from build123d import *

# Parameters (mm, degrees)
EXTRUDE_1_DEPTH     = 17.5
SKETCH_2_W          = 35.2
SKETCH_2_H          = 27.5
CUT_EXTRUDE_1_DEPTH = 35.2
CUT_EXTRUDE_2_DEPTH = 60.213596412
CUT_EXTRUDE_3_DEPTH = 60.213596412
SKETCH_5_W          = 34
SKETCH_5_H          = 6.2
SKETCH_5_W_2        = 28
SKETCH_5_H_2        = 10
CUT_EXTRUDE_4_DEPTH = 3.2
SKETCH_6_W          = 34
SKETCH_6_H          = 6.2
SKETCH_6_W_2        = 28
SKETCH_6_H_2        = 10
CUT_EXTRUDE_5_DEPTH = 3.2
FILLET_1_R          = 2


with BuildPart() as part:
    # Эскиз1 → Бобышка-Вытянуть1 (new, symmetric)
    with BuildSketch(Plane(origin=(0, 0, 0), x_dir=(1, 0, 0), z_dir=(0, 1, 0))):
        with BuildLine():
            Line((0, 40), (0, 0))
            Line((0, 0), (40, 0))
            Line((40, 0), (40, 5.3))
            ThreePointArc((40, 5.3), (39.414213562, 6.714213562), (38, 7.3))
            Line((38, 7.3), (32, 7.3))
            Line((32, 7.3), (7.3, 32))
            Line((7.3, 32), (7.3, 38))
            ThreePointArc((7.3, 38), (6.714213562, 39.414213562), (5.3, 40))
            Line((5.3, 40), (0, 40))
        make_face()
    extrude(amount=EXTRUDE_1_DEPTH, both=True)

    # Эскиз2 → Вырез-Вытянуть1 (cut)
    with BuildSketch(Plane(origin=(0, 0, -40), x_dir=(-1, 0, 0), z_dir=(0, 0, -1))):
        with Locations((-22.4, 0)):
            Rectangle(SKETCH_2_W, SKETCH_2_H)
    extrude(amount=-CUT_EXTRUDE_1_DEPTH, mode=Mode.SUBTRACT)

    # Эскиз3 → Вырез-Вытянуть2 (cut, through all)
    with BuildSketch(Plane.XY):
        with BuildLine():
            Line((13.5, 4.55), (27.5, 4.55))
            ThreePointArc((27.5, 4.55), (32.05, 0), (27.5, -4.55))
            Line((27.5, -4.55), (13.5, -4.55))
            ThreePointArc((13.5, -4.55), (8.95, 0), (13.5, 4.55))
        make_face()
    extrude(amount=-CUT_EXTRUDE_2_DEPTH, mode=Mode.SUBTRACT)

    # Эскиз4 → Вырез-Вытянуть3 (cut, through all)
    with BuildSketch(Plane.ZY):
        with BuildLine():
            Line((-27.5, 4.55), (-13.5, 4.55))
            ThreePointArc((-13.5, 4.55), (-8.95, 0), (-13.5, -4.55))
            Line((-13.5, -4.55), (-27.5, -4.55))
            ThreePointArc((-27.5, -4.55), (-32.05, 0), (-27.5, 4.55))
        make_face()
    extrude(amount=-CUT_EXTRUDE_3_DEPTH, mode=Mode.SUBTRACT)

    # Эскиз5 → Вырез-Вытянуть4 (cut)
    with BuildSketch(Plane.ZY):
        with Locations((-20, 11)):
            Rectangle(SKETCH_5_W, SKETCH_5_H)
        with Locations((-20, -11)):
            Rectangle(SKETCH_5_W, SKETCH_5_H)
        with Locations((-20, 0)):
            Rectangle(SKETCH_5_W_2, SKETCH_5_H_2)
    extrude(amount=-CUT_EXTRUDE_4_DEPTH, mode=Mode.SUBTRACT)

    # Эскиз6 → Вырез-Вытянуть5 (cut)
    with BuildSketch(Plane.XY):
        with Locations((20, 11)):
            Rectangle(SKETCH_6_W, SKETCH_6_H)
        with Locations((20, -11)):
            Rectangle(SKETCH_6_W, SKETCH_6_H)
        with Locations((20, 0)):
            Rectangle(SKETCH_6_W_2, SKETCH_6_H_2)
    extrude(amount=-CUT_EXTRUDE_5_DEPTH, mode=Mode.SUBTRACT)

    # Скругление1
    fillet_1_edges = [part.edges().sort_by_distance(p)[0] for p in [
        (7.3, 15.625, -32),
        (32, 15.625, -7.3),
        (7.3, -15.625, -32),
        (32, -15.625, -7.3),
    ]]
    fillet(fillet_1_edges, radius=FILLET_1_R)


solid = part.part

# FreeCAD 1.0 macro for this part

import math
import FreeCAD as App
import Part
import Sketcher


def edges_at(feature, points):
    """Names of the edges that pass closest to the given points."""
    edges = feature.Shape.Edges
    near = lambda p: min(range(len(edges)), key=lambda i: edges[i].distToShape(Part.Vertex(*p))[0])
    return sorted({f"Edge{near(p) + 1}" for p in points})

doc = App.newDocument("Part")
params = doc.addObject("Spreadsheet::Sheet", "Params")
for row, (alias, value) in enumerate([
    ("sketch1_radius", "2 mm"),
    ("sketch1_width", "40 mm"),
    ("sketch1_width2", "6 mm"),
    ("sketch1_width3", "5.3 mm"),
    ("pad1_length", "35 mm"),
    ("sketch2_width", "35.2 mm"),
    ("sketch2_height", "27.5 mm"),
    ("pocket1_length", "35.2 mm"),
    ("sketch3_width", "14 mm"),
    ("sketch3_radius", "4.55 mm"),
    ("sketch4_height", "14 mm"),
    ("sketch4_radius", "4.55 mm"),
    ("sketch5_width", "10 mm"),
    ("sketch5_height", "34 mm"),
    ("sketch5_height2", "28 mm"),
    ("sketch5_width2", "6.2 mm"),
    ("pocket4_length", "3.2 mm"),
    ("sketch6_width", "34 mm"),
    ("sketch6_width2", "28 mm"),
    ("sketch6_height", "10 mm"),
    ("sketch6_height2", "6.2 mm"),
    ("pocket5_length", "3.2 mm"),
    ("fillet_radius", "2 mm"),
], start=1):
    params.set(f"A{row}", alias)
    params.set(f"B{row}", "=" + value)
    params.setAlias(f"B{row}", alias)

body = doc.addObject("PartDesign::Body", "Body")

sketch1 = body.newObject("Sketcher::SketchObject", "Sketch")
sketch1.AttachmentSupport = (doc.getObject("XZ_Plane"), [""])
sketch1.MapMode = "FlatFace"
sketch1.addGeometry(Part.LineSegment(App.Vector(0, -40, 0), App.Vector(0, 0, 0)), False)
sketch1.addGeometry(Part.LineSegment(App.Vector(0, 0, 0), App.Vector(40, 0, 0)), False)
sketch1.addGeometry(Part.LineSegment(App.Vector(40, 0, 0), App.Vector(40, -5.3, 0)), False)
sketch1.addGeometry(Part.ArcOfCircle(Part.Circle(App.Vector(38, -5.3, 0), App.Vector(0, 0, 1), 2), math.radians(-90), math.radians(0)), False)
sketch1.addGeometry(Part.LineSegment(App.Vector(38, -7.3, 0), App.Vector(32, -7.3, 0)), False)
sketch1.addGeometry(Part.LineSegment(App.Vector(32, -7.3, 0), App.Vector(7.3, -32, 0)), False)
sketch1.addGeometry(Part.LineSegment(App.Vector(7.3, -32, 0), App.Vector(7.3, -38, 0)), False)
sketch1.addGeometry(Part.ArcOfCircle(Part.Circle(App.Vector(5.3, -38, 0), App.Vector(0, 0, 1), 2), math.radians(-90), math.radians(0)), False)
sketch1.addGeometry(Part.LineSegment(App.Vector(5.3, -40, 0), App.Vector(0, -40, 0)), False)
sketch1.addConstraint(Sketcher.Constraint("Coincident", 0, 2, 1, 1))
sketch1.addConstraint(Sketcher.Constraint("Coincident", 1, 2, 2, 1))
sketch1.addConstraint(Sketcher.Constraint("Tangent", 2, 2, 3, 2))
sketch1.addConstraint(Sketcher.Constraint("Tangent", 3, 1, 4, 1))
sketch1.addConstraint(Sketcher.Constraint("Coincident", 4, 2, 5, 1))
sketch1.addConstraint(Sketcher.Constraint("Coincident", 5, 2, 6, 1))
sketch1.addConstraint(Sketcher.Constraint("Tangent", 6, 2, 7, 2))
sketch1.addConstraint(Sketcher.Constraint("Tangent", 7, 1, 8, 1))
sketch1.addConstraint(Sketcher.Constraint("Coincident", 8, 2, 0, 1))
sketch1.addConstraint(Sketcher.Constraint("Vertical", 0))
sketch1.addConstraint(Sketcher.Constraint("Horizontal", 1))
sketch1.addConstraint(Sketcher.Constraint("Vertical", 2))
sketch1.addConstraint(Sketcher.Constraint("Horizontal", 4))
sketch1.addConstraint(Sketcher.Constraint("Vertical", 6))
sketch1.addConstraint(Sketcher.Constraint("Horizontal", 8))
sketch1.addConstraint(Sketcher.Constraint("Coincident", 0, 2, -1, 1))
sketch1.addConstraint(Sketcher.Constraint("Equal", 3, 7))
sketch1.addConstraint(Sketcher.Constraint("Equal", 1, 0))
sketch1.addConstraint(Sketcher.Constraint("Equal", 8, 2))
sketch1.addConstraint(Sketcher.Constraint("Equal", 4, 6))
sketch1.addConstraint(Sketcher.Constraint("Radius", 3, 2.0))
sketch1.addConstraint(Sketcher.Constraint("DistanceX", 1, 1, 1, 2, 40.0))
sketch1.addConstraint(Sketcher.Constraint("DistanceX", 4, 2, 4, 1, 6.0))
sketch1.addConstraint(Sketcher.Constraint("DistanceX", 8, 2, 8, 1, 5.3))
sketch1.setExpression("Constraints[20]", "Params.sketch1_radius")
sketch1.setExpression("Constraints[21]", "Params.sketch1_width")
sketch1.setExpression("Constraints[22]", "Params.sketch1_width2")
sketch1.setExpression("Constraints[23]", "Params.sketch1_width3")
pad1 = body.newObject("PartDesign::Pad", "Pad")
pad1.Profile = sketch1
pad1.setExpression("Length", "Params.pad1_length")
pad1.Midplane = True

sketch2 = body.newObject("Sketcher::SketchObject", "Sketch001")
sketch2.AttachmentSupport = (doc.getObject("XY_Plane"), [""])
sketch2.MapMode = "FlatFace"
sketch2.AttachmentOffset = App.Placement(App.Vector(0, 0, -40), App.Rotation())
sketch2.addGeometry(Part.LineSegment(App.Vector(40, 13.75, 0), App.Vector(40, -13.75, 0)), False)
sketch2.addGeometry(Part.LineSegment(App.Vector(40, -13.75, 0), App.Vector(4.8, -13.75, 0)), False)
sketch2.addGeometry(Part.LineSegment(App.Vector(4.8, -13.75, 0), App.Vector(4.8, 13.75, 0)), False)
sketch2.addGeometry(Part.LineSegment(App.Vector(4.8, 13.75, 0), App.Vector(40, 13.75, 0)), False)
sketch2.addConstraint(Sketcher.Constraint("Coincident", 0, 2, 1, 1))
sketch2.addConstraint(Sketcher.Constraint("Coincident", 1, 2, 2, 1))
sketch2.addConstraint(Sketcher.Constraint("Coincident", 2, 2, 3, 1))
sketch2.addConstraint(Sketcher.Constraint("Coincident", 3, 2, 0, 1))
sketch2.addConstraint(Sketcher.Constraint("Vertical", 0))
sketch2.addConstraint(Sketcher.Constraint("Horizontal", 1))
sketch2.addConstraint(Sketcher.Constraint("Vertical", 2))
sketch2.addConstraint(Sketcher.Constraint("Horizontal", 3))
sketch2.addConstraint(Sketcher.Constraint("DistanceX", 1, 2, 1, 1, 35.2))
sketch2.addConstraint(Sketcher.Constraint("DistanceY", 0, 2, 0, 1, 27.5))
sketch2.addConstraint(Sketcher.Constraint("DistanceX", -1, 1, 0, 2, 40.0))
sketch2.addConstraint(Sketcher.Constraint("DistanceY", 0, 2, -1, 1, 13.75))
sketch2.setExpression("Constraints[8]", "Params.sketch2_width")
sketch2.setExpression("Constraints[9]", "Params.sketch2_height")
pocket1 = body.newObject("PartDesign::Pocket", "Pocket")
pocket1.Profile = sketch2
pocket1.setExpression("Length", "Params.pocket1_length")
pocket1.Reversed = True

sketch3 = body.newObject("Sketcher::SketchObject", "Sketch002")
sketch3.AttachmentSupport = (doc.getObject("XY_Plane"), [""])
sketch3.MapMode = "FlatFace"
sketch3.addGeometry(Part.LineSegment(App.Vector(27.5, 4.55, 0), App.Vector(13.5, 4.55, 0)), False)
sketch3.addGeometry(Part.ArcOfCircle(Part.Circle(App.Vector(13.5, 0, 0), App.Vector(0, 0, 1), 4.55), math.radians(90), math.radians(270)), False)
sketch3.addGeometry(Part.LineSegment(App.Vector(13.5, -4.55, 0), App.Vector(27.5, -4.55, 0)), False)
sketch3.addGeometry(Part.ArcOfCircle(Part.Circle(App.Vector(27.5, 0, 0), App.Vector(0, 0, 1), 4.55), math.radians(-90), math.radians(90)), False)
sketch3.addConstraint(Sketcher.Constraint("Tangent", 0, 2, 1, 1))
sketch3.addConstraint(Sketcher.Constraint("Tangent", 1, 2, 2, 1))
sketch3.addConstraint(Sketcher.Constraint("Tangent", 2, 2, 3, 1))
sketch3.addConstraint(Sketcher.Constraint("Tangent", 3, 2, 0, 1))
sketch3.addConstraint(Sketcher.Constraint("Horizontal", 0))
sketch3.addConstraint(Sketcher.Constraint("Horizontal", 2))
sketch3.addConstraint(Sketcher.Constraint("PointOnObject", 1, 3, -1))
sketch3.addConstraint(Sketcher.Constraint("DistanceX", 0, 2, 0, 1, 14.0))
sketch3.addConstraint(Sketcher.Constraint("Radius", 1, 4.55))
sketch3.addConstraint(Sketcher.Constraint("DistanceX", -1, 1, 1, 3, 13.5))
sketch3.setExpression("Constraints[7]", "Params.sketch3_width")
sketch3.setExpression("Constraints[8]", "Params.sketch3_radius")
pocket2 = body.newObject("PartDesign::Pocket", "Pocket001")
pocket2.Profile = sketch3
pocket2.Type = "ThroughAll"

sketch4 = body.newObject("Sketcher::SketchObject", "Sketch003")
sketch4.AttachmentSupport = (doc.getObject("YZ_Plane"), [""])
sketch4.MapMode = "FlatFace"
sketch4.addGeometry(Part.LineSegment(App.Vector(4.55, -13.5, 0), App.Vector(4.55, -27.5, 0)), False)
sketch4.addGeometry(Part.ArcOfCircle(Part.Circle(App.Vector(0, -27.5, 0), App.Vector(0, 0, 1), 4.55), math.radians(180), math.radians(360)), False)
sketch4.addGeometry(Part.LineSegment(App.Vector(-4.55, -27.5, 0), App.Vector(-4.55, -13.5, 0)), False)
sketch4.addGeometry(Part.ArcOfCircle(Part.Circle(App.Vector(0, -13.5, 0), App.Vector(0, 0, 1), 4.55), math.radians(0), math.radians(180)), False)
sketch4.addConstraint(Sketcher.Constraint("Tangent", 0, 2, 1, 2))
sketch4.addConstraint(Sketcher.Constraint("Tangent", 1, 1, 2, 1))
sketch4.addConstraint(Sketcher.Constraint("Tangent", 2, 2, 3, 2))
sketch4.addConstraint(Sketcher.Constraint("Tangent", 3, 1, 0, 1))
sketch4.addConstraint(Sketcher.Constraint("Vertical", 0))
sketch4.addConstraint(Sketcher.Constraint("Vertical", 2))
sketch4.addConstraint(Sketcher.Constraint("PointOnObject", 1, 3, -2))
sketch4.addConstraint(Sketcher.Constraint("DistanceY", 0, 2, 0, 1, 14.0))
sketch4.addConstraint(Sketcher.Constraint("Radius", 1, 4.55))
sketch4.addConstraint(Sketcher.Constraint("DistanceY", 1, 3, -1, 1, 27.5))
sketch4.setExpression("Constraints[7]", "Params.sketch4_height")
sketch4.setExpression("Constraints[8]", "Params.sketch4_radius")
pocket3 = body.newObject("PartDesign::Pocket", "Pocket002")
pocket3.Profile = sketch4
pocket3.Type = "ThroughAll"
pocket3.Reversed = True

sketch5 = body.newObject("Sketcher::SketchObject", "Sketch004")
sketch5.AttachmentSupport = (doc.getObject("YZ_Plane"), [""])
sketch5.MapMode = "FlatFace"
sketch5.addGeometry(Part.LineSegment(App.Vector(14.1, -37, 0), App.Vector(7.9, -37, 0)), False)
sketch5.addGeometry(Part.LineSegment(App.Vector(7.9, -37, 0), App.Vector(7.9, -3, 0)), False)
sketch5.addGeometry(Part.LineSegment(App.Vector(7.9, -3, 0), App.Vector(14.1, -3, 0)), False)
sketch5.addGeometry(Part.LineSegment(App.Vector(14.1, -3, 0), App.Vector(14.1, -37, 0)), False)
sketch5.addGeometry(Part.LineSegment(App.Vector(-7.9, -37, 0), App.Vector(-14.1, -37, 0)), False)
sketch5.addGeometry(Part.LineSegment(App.Vector(-14.1, -37, 0), App.Vector(-14.1, -3, 0)), False)
sketch5.addGeometry(Part.LineSegment(App.Vector(-14.1, -3, 0), App.Vector(-7.9, -3, 0)), False)
sketch5.addGeometry(Part.LineSegment(App.Vector(-7.9, -3, 0), App.Vector(-7.9, -37, 0)), False)
sketch5.addGeometry(Part.LineSegment(App.Vector(5, -34, 0), App.Vector(-5, -34, 0)), False)
sketch5.addGeometry(Part.LineSegment(App.Vector(-5, -34, 0), App.Vector(-5, -6, 0)), False)
sketch5.addGeometry(Part.LineSegment(App.Vector(-5, -6, 0), App.Vector(5, -6, 0)), False)
sketch5.addGeometry(Part.LineSegment(App.Vector(5, -6, 0), App.Vector(5, -34, 0)), False)
sketch5.addConstraint(Sketcher.Constraint("Coincident", 0, 2, 1, 1))
sketch5.addConstraint(Sketcher.Constraint("Coincident", 1, 2, 2, 1))
sketch5.addConstraint(Sketcher.Constraint("Coincident", 2, 2, 3, 1))
sketch5.addConstraint(Sketcher.Constraint("Coincident", 3, 2, 0, 1))
sketch5.addConstraint(Sketcher.Constraint("Coincident", 4, 2, 5, 1))
sketch5.addConstraint(Sketcher.Constraint("Coincident", 5, 2, 6, 1))
sketch5.addConstraint(Sketcher.Constraint("Coincident", 6, 2, 7, 1))
sketch5.addConstraint(Sketcher.Constraint("Coincident", 7, 2, 4, 1))
sketch5.addConstraint(Sketcher.Constraint("Coincident", 8, 2, 9, 1))
sketch5.addConstraint(Sketcher.Constraint("Coincident", 9, 2, 10, 1))
sketch5.addConstraint(Sketcher.Constraint("Coincident", 10, 2, 11, 1))
sketch5.addConstraint(Sketcher.Constraint("Coincident", 11, 2, 8, 1))
sketch5.addConstraint(Sketcher.Constraint("Horizontal", 0))
sketch5.addConstraint(Sketcher.Constraint("Vertical", 1))
sketch5.addConstraint(Sketcher.Constraint("Horizontal", 2))
sketch5.addConstraint(Sketcher.Constraint("Vertical", 3))
sketch5.addConstraint(Sketcher.Constraint("Horizontal", 4))
sketch5.addConstraint(Sketcher.Constraint("Vertical", 5))
sketch5.addConstraint(Sketcher.Constraint("Horizontal", 6))
sketch5.addConstraint(Sketcher.Constraint("Vertical", 7))
sketch5.addConstraint(Sketcher.Constraint("Horizontal", 8))
sketch5.addConstraint(Sketcher.Constraint("Vertical", 9))
sketch5.addConstraint(Sketcher.Constraint("Horizontal", 10))
sketch5.addConstraint(Sketcher.Constraint("Vertical", 11))
sketch5.addConstraint(Sketcher.Constraint("Symmetric", 3, 2, 4, 2, -2))
sketch5.addConstraint(Sketcher.Constraint("Symmetric", 1, 2, 6, 2, -2))
sketch5.addConstraint(Sketcher.Constraint("DistanceX", 8, 2, 8, 1, 10.0))
sketch5.addConstraint(Sketcher.Constraint("DistanceY", 1, 1, 1, 2, 34.0))
sketch5.addConstraint(Sketcher.Constraint("DistanceY", 9, 1, 9, 2, 28.0))
sketch5.addConstraint(Sketcher.Constraint("DistanceX", 0, 2, 0, 1, 6.2))
sketch5.addConstraint(Sketcher.Constraint("DistanceY", 0, 2, -1, 1, 37.0))
sketch5.addConstraint(Sketcher.Constraint("DistanceX", 8, 2, -1, 1, 5.0))
sketch5.addConstraint(Sketcher.Constraint("DistanceY", 8, 2, -1, 1, 34.0))
sketch5.addConstraint(Sketcher.Constraint("DistanceX", 4, 2, 0, 2, 22.0))
sketch5.setExpression("Constraints[26]", "Params.sketch5_width")
sketch5.setExpression("Constraints[27]", "Params.sketch5_height")
sketch5.setExpression("Constraints[28]", "Params.sketch5_height2")
sketch5.setExpression("Constraints[29]", "Params.sketch5_width2")
pocket4 = body.newObject("PartDesign::Pocket", "Pocket003")
pocket4.Profile = sketch5
pocket4.setExpression("Length", "Params.pocket4_length")
pocket4.Reversed = True

sketch6 = body.newObject("Sketcher::SketchObject", "Sketch005")
sketch6.AttachmentSupport = (doc.getObject("XY_Plane"), [""])
sketch6.MapMode = "FlatFace"
sketch6.addGeometry(Part.LineSegment(App.Vector(3, 14.1, 0), App.Vector(3, 7.9, 0)), False)
sketch6.addGeometry(Part.LineSegment(App.Vector(3, 7.9, 0), App.Vector(37, 7.9, 0)), False)
sketch6.addGeometry(Part.LineSegment(App.Vector(37, 7.9, 0), App.Vector(37, 14.1, 0)), False)
sketch6.addGeometry(Part.LineSegment(App.Vector(37, 14.1, 0), App.Vector(3, 14.1, 0)), False)
sketch6.addGeometry(Part.LineSegment(App.Vector(3, -7.9, 0), App.Vector(3, -14.1, 0)), False)
sketch6.addGeometry(Part.LineSegment(App.Vector(3, -14.1, 0), App.Vector(37, -14.1, 0)), False)
sketch6.addGeometry(Part.LineSegment(App.Vector(37, -14.1, 0), App.Vector(37, -7.9, 0)), False)
sketch6.addGeometry(Part.LineSegment(App.Vector(37, -7.9, 0), App.Vector(3, -7.9, 0)), False)
sketch6.addGeometry(Part.LineSegment(App.Vector(6, 5, 0), App.Vector(6, -5, 0)), False)
sketch6.addGeometry(Part.LineSegment(App.Vector(6, -5, 0), App.Vector(34, -5, 0)), False)
sketch6.addGeometry(Part.LineSegment(App.Vector(34, -5, 0), App.Vector(34, 5, 0)), False)
sketch6.addGeometry(Part.LineSegment(App.Vector(34, 5, 0), App.Vector(6, 5, 0)), False)
sketch6.addConstraint(Sketcher.Constraint("Coincident", 0, 2, 1, 1))
sketch6.addConstraint(Sketcher.Constraint("Coincident", 1, 2, 2, 1))
sketch6.addConstraint(Sketcher.Constraint("Coincident", 2, 2, 3, 1))
sketch6.addConstraint(Sketcher.Constraint("Coincident", 3, 2, 0, 1))
sketch6.addConstraint(Sketcher.Constraint("Coincident", 4, 2, 5, 1))
sketch6.addConstraint(Sketcher.Constraint("Coincident", 5, 2, 6, 1))
sketch6.addConstraint(Sketcher.Constraint("Coincident", 6, 2, 7, 1))
sketch6.addConstraint(Sketcher.Constraint("Coincident", 7, 2, 4, 1))
sketch6.addConstraint(Sketcher.Constraint("Coincident", 8, 2, 9, 1))
sketch6.addConstraint(Sketcher.Constraint("Coincident", 9, 2, 10, 1))
sketch6.addConstraint(Sketcher.Constraint("Coincident", 10, 2, 11, 1))
sketch6.addConstraint(Sketcher.Constraint("Coincident", 11, 2, 8, 1))
sketch6.addConstraint(Sketcher.Constraint("Vertical", 0))
sketch6.addConstraint(Sketcher.Constraint("Horizontal", 1))
sketch6.addConstraint(Sketcher.Constraint("Vertical", 2))
sketch6.addConstraint(Sketcher.Constraint("Horizontal", 3))
sketch6.addConstraint(Sketcher.Constraint("Vertical", 4))
sketch6.addConstraint(Sketcher.Constraint("Horizontal", 5))
sketch6.addConstraint(Sketcher.Constraint("Vertical", 6))
sketch6.addConstraint(Sketcher.Constraint("Horizontal", 7))
sketch6.addConstraint(Sketcher.Constraint("Vertical", 8))
sketch6.addConstraint(Sketcher.Constraint("Horizontal", 9))
sketch6.addConstraint(Sketcher.Constraint("Vertical", 10))
sketch6.addConstraint(Sketcher.Constraint("Horizontal", 11))
sketch6.addConstraint(Sketcher.Constraint("Symmetric", 3, 2, 4, 2, -1))
sketch6.addConstraint(Sketcher.Constraint("Symmetric", 1, 2, 6, 2, -1))
sketch6.addConstraint(Sketcher.Constraint("DistanceX", 1, 1, 1, 2, 34.0))
sketch6.addConstraint(Sketcher.Constraint("DistanceX", 9, 1, 9, 2, 28.0))
sketch6.addConstraint(Sketcher.Constraint("DistanceY", 8, 2, 8, 1, 10.0))
sketch6.addConstraint(Sketcher.Constraint("DistanceY", 0, 2, 0, 1, 6.2))
sketch6.addConstraint(Sketcher.Constraint("DistanceX", -1, 1, 0, 2, 3.0))
sketch6.addConstraint(Sketcher.Constraint("DistanceX", -1, 1, 8, 2, 6.0))
sketch6.addConstraint(Sketcher.Constraint("DistanceY", 8, 2, -1, 1, 5.0))
sketch6.addConstraint(Sketcher.Constraint("DistanceY", 4, 2, 0, 2, 22.0))
sketch6.setExpression("Constraints[26]", "Params.sketch6_width")
sketch6.setExpression("Constraints[27]", "Params.sketch6_width2")
sketch6.setExpression("Constraints[28]", "Params.sketch6_height")
sketch6.setExpression("Constraints[29]", "Params.sketch6_height2")
pocket5 = body.newObject("PartDesign::Pocket", "Pocket004")
pocket5.Profile = sketch6
pocket5.setExpression("Length", "Params.pocket5_length")
doc.recompute()

fillet = body.newObject("PartDesign::Fillet", "Fillet")
fillet.Base = (pocket5, edges_at(pocket5, [
    (7.3, 15.625, -32),
    (32, 15.625, -7.3),
    (7.3, -15.625, -32),
    (32, -15.625, -7.3),
]))
fillet.setExpression("Radius", "Params.fillet_radius")

doc.recompute()
